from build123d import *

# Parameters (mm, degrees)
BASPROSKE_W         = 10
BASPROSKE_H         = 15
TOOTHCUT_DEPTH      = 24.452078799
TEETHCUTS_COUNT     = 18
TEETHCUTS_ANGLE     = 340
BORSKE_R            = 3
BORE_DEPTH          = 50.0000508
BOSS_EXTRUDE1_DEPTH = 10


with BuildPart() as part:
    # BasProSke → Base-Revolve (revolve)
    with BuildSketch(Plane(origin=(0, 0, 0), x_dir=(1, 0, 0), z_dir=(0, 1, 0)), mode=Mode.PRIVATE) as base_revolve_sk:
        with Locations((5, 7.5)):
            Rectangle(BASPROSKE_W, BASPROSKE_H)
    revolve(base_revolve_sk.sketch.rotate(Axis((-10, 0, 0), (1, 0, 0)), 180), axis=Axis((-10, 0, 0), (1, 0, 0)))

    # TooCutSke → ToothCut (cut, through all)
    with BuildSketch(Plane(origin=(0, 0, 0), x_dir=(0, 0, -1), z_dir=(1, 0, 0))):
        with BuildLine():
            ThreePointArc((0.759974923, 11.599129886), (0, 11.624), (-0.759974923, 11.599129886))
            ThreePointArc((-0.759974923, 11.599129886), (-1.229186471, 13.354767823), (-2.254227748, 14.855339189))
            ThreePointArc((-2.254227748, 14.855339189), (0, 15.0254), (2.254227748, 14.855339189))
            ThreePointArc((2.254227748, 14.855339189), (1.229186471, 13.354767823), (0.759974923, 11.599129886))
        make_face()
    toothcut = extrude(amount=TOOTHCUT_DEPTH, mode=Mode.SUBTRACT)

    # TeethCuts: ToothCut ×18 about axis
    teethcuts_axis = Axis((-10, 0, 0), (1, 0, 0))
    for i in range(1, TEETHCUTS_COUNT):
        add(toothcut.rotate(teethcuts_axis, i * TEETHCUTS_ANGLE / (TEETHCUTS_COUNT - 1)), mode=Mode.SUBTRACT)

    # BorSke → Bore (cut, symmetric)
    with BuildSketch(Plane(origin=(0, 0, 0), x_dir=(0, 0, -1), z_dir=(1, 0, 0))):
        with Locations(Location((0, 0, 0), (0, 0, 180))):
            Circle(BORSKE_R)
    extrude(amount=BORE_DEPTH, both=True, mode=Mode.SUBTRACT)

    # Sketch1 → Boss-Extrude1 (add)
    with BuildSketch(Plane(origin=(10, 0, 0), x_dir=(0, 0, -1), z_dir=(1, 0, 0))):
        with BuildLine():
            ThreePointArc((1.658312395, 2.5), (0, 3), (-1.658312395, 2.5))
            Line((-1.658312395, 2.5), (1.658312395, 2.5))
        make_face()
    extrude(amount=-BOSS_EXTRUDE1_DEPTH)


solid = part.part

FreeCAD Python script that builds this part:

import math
import FreeCAD as App
import Part
import Sketcher
from FreeCAD import Vector


def add_polygon(sketch, points):
    """Adds a closed chain of lines whose ends are joined by coincident constraints."""
    first, n = sketch.GeometryCount, len(points)
    for a, b in zip(points, points[1:] + points[:1]):
        sketch.addGeometry(Part.LineSegment(App.Vector(*a, 0), App.Vector(*b, 0)), False)
    for i in range(n):
        sketch.addConstraint(Sketcher.Constraint("Coincident", first + i, 2, first + (i + 1) % n, 1))

doc = App.newDocument("Part")
body = doc.addObject("PartDesign::Body", "Body")

sketch1 = doc.addObject("Sketcher::SketchObject", "Sketch")
body.addObject(sketch1)
sketch1.AttachmentSupport = (doc.XZ_Plane, [""])
sketch1.MapMode = "FlatFace"
add_polygon(sketch1, [(0, -15), (0, 0), (10, 0), (10, -15)])
sketch1.addConstraint(Sketcher.Constraint("Vertical", 0))
sketch1.addConstraint(Sketcher.Constraint("Horizontal", 1))
sketch1.addConstraint(Sketcher.Constraint("Vertical", 2))
sketch1.addConstraint(Sketcher.Constraint("Horizontal", 3))
sketch1.addConstraint(Sketcher.Constraint("Coincident", 0, 2, -1, 1))
sketch1.addConstraint(Sketcher.Constraint("DistanceX", 1, 1, 1, 2, 10.0))
sketch1.addConstraint(Sketcher.Constraint("DistanceY", 0, 1, 0, 2, 15.0))
revolution = doc.addObject("PartDesign::Revolution", "Revolution")
body.addObject(revolution)
revolution.Profile = sketch1
revolution.ReferenceAxis = (sketch1, ["H_Axis"])
revolution.Angle = 360

sketch2 = doc.addObject("Sketcher::SketchObject", "Sketch001")
body.addObject(sketch2)
sketch2.AttachmentSupport = (doc.YZ_Plane, [""])
sketch2.MapMode = "FlatFace"
sketch2.addGeometry(Part.ArcOfCircle(Part.Circle(Vector(0, 0, 0), Vector(0, 0, 1), 11.6), math.radians(-3.75), math.radians(3.75)), False)
sketch2.addGeometry(Part.ArcOfCircle(Part.Circle(Vector(11.1, -6.1, 0), Vector(0, 0, 1), 5.4), math.radians(46), math.radians(85)), False)
sketch2.addGeometry(Part.ArcOfCircle(Part.Circle(Vector(0, 0, 0), Vector(0, 0, 1), 15), math.radians(-8.63), math.radians(8.63)), False)
sketch2.addGeometry(Part.ArcOfCircle(Part.Circle(Vector(11.1, 6.1, 0), Vector(0, 0, 1), 5.4), math.radians(-85), math.radians(-46)), False)
sketch2.addConstraint(Sketcher.Constraint("Coincident", 0, 1, 1, 2))
sketch2.addConstraint(Sketcher.Constraint("Coincident", 1, 1, 2, 1))
sketch2.addConstraint(Sketcher.Constraint("Coincident", 2, 2, 3, 2))
sketch2.addConstraint(Sketcher.Constraint("Coincident", 3, 1, 0, 2))
sketch2.addConstraint(Sketcher.Constraint("Coincident", 0, 3, -1, 1))
sketch2.addConstraint(Sketcher.Constraint("Coincident", 2, 3, -1, 1))
sketch2.addConstraint(Sketcher.Constraint("Equal", 1, 3))
sketch2.addConstraint(Sketcher.Constraint("Symmetric", 1, 3, 3, 3, -1))
sketch2.addConstraint(Sketcher.Constraint("Radius", 1, 5.4))
sketch2.addConstraint(Sketcher.Constraint("Radius", 0, 11.624))
sketch2.addConstraint(Sketcher.Constraint("Radius", 2, 15.0254))
sketch2.addConstraint(Sketcher.Constraint("DistanceX", -1, 1, 1, 3, 11.102561))
sketch2.addConstraint(Sketcher.Constraint("DistanceX", -1, 1, 0, 1, 11.59913))
pocket1 = doc.addObject("PartDesign::Pocket", "Pocket")
body.addObject(pocket1)
pocket1.Profile = sketch2
pocket1.Type = "ThroughAll"
pocket1.Reversed = True
doc.recompute()

polarpattern = doc.addObject("PartDesign::PolarPattern", "PolarPattern")
body.addObject(polarpattern)
polarpattern.Originals = [pocket1]
polarpattern.Axis = (doc.X_Axis, [""])
polarpattern.Angle = 360
polarpattern.Occurrences = 18
body.Tip = polarpattern

sketch3 = doc.addObject("Sketcher::SketchObject", "Sketch002")
body.addObject(sketch3)
sketch3.AttachmentSupport = (doc.YZ_Plane, [""])
sketch3.MapMode = "FlatFace"
sketch3.addGeometry(Part.Circle(Vector(0, 0, 0), Vector(0, 0, 1), 3), False)
sketch3.addConstraint(Sketcher.Constraint("Coincident", 0, 3, -1, 1))
sketch3.addConstraint(Sketcher.Constraint("Diameter", 0, 6.0))
pocket2 = doc.addObject("PartDesign::Pocket", "Pocket001")
body.addObject(pocket2)
pocket2.Profile = sketch3
pocket2.Length = 100.000102
pocket2.Midplane = True

sketch4 = doc.addObject("Sketcher::SketchObject", "Sketch003")
body.addObject(sketch4)
sketch4.AttachmentSupport = (doc.YZ_Plane, [""])
sketch4.MapMode = "FlatFace"
sketch4.AttachmentOffset = App.Placement(Vector(0, 0, 10), App.Rotation())
sketch4.addGeometry(Part.ArcOfCircle(Part.Circle(Vector(0, 0, 0), Vector(0, 0, 1), 3), math.radians(-34), math.radians(34)), False)
sketch4.addGeometry(Part.LineSegment(Vector(2.5, 1.7, 0), Vector(2.5, -1.7, 0)), False)
sketch4.addConstraint(Sketcher.Constraint("Coincident", 0, 1, 1, 2))
sketch4.addConstraint(Sketcher.Constraint("Coincident", 1, 1, 0, 2))
sketch4.addConstraint(Sketcher.Constraint("Vertical", 1))
sketch4.addConstraint(Sketcher.Constraint("Coincident", 0, 3, -1, 1))
sketch4.addConstraint(Sketcher.Constraint("Radius", 0, 3.0))
sketch4.addConstraint(Sketcher.Constraint("DistanceX", -1, 1, 0, 1, 2.5))
pad1 = doc.addObject("PartDesign::Pad", "Pad")
body.addObject(pad1)
pad1.Profile = sketch4
pad1.Length = 10
pad1.Reversed = True

doc.recompute()
